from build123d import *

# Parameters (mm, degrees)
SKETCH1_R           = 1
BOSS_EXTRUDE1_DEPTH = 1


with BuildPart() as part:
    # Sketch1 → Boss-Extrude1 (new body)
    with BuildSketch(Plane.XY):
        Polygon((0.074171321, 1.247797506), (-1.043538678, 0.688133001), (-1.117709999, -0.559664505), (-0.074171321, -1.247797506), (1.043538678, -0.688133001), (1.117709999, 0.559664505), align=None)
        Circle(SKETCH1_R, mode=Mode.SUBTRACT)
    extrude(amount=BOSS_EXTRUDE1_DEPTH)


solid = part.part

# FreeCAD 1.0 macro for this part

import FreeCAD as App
import Part
import Sketcher
from FreeCAD import Vector


def add_polygon(sketch, points):
    """Adds a closed chain of lines whose ends are joined by coincident constraints."""
    first, n = sketch.GeometryCount, len(points)
    for a, b in zip(points, points[1:] + points[:1]):
        sketch.addGeometry(Part.LineSegment(App.Vector(*a, 0), App.Vector(*b, 0)), False)
    for i in range(n):
        sketch.addConstraint(Sketcher.Constraint("Coincident", first + i, 2, first + (i + 1) % n, 1))

doc = App.newDocument("Part")
body = doc.addObject("PartDesign::Body", "Body")

sketch1 = doc.addObject("Sketcher::SketchObject", "Sketch")
body.addObject(sketch1)
sketch1.AttachmentSupport = (doc.XY_Plane, [""])
sketch1.MapMode = "FlatFace"
add_polygon(sketch1, [(0.1, 1.2), (-1, 0.7), (-1.1, -0.6), (-0.1, -1.2), (1, -0.7), (1.1, 0.6)])
sketch1.addGeometry(Part.Circle(Vector(0, 0, 0), Vector(0, 0, 1), 1), False)
sketch1.addConstraint([
    Sketcher.Constraint("Coincident", 6, 3, -1, 1),
    Sketcher.Constraint("Symmetric", 0, 2, 3, 2, -1, 1),
    Sketcher.Constraint("Symmetric", 1, 2, 4, 2, -1, 1),
    Sketcher.Constraint("Symmetric", 2, 2, 5, 2, -1, 1),
    Sketcher.Constraint("Equal", 0, 1),
    Sketcher.Constraint("Equal", 1, 2),
    Sketcher.Constraint("Diameter", 6, 2.0),
    Sketcher.Constraint("Distance", 0, 1.25),
    Sketcher.Constraint("DistanceX", 0, 2, -1, 1, 1.043539),
    Sketcher.Constraint("DistanceX", 1, 2, -1, 1, 1.11771),
    Sketcher.Constraint("DistanceX", 2, 2, -1, 1, 0.074171),
])
pad1 = doc.addObject("PartDesign::Pad", "Pad")
body.addObject(pad1)
pad1.Profile = sketch1
pad1.Length = 1

doc.recompute()
